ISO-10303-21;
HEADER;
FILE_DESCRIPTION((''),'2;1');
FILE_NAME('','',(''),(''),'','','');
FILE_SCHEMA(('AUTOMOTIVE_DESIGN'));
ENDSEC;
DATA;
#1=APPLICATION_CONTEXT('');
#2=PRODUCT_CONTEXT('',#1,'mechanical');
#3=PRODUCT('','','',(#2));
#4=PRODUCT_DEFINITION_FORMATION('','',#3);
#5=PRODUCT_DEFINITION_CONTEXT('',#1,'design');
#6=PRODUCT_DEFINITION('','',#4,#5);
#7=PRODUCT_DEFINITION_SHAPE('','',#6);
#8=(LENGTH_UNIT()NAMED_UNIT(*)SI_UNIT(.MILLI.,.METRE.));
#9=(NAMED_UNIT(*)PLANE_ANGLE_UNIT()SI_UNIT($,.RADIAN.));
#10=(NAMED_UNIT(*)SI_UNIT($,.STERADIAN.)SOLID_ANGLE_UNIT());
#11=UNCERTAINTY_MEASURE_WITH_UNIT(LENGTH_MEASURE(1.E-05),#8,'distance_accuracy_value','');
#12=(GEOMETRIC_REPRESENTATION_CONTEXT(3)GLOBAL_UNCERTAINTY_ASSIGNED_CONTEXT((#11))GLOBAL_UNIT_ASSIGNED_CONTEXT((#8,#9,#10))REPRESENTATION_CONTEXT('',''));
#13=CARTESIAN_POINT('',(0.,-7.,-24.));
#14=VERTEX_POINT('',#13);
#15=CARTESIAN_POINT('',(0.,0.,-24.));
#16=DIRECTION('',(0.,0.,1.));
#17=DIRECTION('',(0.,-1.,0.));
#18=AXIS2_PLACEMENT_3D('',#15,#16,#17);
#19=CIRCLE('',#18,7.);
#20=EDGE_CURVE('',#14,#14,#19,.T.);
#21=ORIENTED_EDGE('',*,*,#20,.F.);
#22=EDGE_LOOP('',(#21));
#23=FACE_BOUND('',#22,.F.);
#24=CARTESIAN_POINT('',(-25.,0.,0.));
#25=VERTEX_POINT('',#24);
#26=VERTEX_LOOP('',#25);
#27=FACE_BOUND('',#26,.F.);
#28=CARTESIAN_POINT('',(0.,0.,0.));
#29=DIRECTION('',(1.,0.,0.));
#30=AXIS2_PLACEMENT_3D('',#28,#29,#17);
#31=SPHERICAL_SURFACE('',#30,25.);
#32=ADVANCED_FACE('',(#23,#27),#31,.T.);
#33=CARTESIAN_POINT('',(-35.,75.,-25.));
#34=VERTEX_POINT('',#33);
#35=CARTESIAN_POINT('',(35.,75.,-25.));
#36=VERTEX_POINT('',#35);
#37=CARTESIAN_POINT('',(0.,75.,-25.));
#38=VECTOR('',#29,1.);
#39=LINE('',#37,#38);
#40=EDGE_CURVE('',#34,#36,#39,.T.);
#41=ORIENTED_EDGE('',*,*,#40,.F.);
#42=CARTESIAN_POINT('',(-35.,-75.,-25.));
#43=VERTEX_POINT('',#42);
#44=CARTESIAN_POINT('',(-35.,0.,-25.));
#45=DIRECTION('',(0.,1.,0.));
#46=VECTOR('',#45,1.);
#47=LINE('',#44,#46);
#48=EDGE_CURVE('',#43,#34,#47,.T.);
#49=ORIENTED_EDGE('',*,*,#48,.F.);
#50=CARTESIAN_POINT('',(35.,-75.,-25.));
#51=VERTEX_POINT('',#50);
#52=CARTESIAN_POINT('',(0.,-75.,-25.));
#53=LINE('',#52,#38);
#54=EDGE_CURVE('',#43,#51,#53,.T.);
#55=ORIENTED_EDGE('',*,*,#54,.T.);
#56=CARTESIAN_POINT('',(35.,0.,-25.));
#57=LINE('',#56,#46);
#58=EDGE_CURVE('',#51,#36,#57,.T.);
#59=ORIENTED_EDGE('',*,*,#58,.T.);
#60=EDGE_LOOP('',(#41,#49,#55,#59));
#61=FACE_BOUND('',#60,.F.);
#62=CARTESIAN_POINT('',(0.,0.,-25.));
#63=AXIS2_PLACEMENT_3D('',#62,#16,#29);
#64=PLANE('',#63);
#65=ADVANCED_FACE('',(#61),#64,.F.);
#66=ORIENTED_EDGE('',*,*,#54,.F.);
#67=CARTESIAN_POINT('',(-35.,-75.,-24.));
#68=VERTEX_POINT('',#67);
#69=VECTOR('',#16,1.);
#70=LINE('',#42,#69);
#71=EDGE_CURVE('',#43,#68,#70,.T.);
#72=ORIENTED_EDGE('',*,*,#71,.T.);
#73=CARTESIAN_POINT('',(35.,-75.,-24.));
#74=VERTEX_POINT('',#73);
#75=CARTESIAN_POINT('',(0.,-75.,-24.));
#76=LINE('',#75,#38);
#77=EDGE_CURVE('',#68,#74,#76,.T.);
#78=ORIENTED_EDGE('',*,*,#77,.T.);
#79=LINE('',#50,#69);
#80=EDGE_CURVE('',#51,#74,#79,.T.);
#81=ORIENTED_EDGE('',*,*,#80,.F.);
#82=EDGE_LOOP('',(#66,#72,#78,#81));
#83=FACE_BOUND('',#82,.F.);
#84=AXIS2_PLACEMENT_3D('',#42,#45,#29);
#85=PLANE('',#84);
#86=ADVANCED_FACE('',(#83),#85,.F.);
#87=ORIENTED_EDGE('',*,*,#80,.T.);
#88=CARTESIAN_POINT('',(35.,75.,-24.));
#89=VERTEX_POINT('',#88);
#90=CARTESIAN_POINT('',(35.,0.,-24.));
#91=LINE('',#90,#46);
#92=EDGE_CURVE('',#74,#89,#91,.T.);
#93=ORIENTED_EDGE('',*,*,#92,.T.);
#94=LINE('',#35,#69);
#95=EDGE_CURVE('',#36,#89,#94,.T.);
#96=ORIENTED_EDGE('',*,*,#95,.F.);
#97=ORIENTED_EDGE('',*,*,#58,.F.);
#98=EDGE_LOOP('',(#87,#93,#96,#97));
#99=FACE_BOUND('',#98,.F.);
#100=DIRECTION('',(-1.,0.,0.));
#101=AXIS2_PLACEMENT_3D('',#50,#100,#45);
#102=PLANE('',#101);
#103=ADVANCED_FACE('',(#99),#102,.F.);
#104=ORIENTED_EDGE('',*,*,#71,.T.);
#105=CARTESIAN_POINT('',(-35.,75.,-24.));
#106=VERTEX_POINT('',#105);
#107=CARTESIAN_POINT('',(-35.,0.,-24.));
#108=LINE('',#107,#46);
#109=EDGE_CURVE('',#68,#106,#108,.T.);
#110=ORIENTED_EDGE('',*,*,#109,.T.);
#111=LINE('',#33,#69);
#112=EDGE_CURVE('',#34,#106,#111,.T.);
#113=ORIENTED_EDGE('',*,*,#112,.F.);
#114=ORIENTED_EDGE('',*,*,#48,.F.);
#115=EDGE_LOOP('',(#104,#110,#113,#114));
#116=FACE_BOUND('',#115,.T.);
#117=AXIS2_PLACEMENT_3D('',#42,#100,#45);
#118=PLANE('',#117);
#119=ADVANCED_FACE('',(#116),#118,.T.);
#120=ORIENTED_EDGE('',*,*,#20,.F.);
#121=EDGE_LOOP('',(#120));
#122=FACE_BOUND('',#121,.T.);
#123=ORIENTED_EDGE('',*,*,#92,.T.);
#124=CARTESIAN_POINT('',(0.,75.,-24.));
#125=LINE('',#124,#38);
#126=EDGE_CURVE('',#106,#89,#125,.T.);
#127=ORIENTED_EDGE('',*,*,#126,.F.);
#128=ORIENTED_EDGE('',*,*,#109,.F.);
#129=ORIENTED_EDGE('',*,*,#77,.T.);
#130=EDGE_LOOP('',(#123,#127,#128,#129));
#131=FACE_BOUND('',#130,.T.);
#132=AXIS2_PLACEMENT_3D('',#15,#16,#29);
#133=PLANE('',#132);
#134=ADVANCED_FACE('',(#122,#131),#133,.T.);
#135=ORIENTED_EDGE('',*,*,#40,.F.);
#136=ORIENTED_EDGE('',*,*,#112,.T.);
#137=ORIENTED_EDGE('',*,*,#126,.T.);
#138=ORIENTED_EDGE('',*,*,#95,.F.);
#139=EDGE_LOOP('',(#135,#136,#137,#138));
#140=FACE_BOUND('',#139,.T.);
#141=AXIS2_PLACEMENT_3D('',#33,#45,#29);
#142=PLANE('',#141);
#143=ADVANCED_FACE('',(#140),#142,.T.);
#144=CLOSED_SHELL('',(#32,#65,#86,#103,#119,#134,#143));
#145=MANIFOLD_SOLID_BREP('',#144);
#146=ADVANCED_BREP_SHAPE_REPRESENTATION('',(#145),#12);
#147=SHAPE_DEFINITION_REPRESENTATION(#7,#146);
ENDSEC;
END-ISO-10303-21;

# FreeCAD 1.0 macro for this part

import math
import FreeCAD as App
import Part
import Sketcher


def add_polygon(sketch, points):
    """Adds a closed chain of lines whose ends are joined by coincident constraints."""
    first, n = sketch.GeometryCount, len(points)
    for a, b in zip(points, points[1:] + points[:1]):
        sketch.addGeometry(Part.LineSegment(App.Vector(*a, 0), App.Vector(*b, 0)), False)
    for i in range(n):
        sketch.addConstraint(Sketcher.Constraint("Coincident", first + i, 2, first + (i + 1) % n, 1))

doc = App.newDocument("Part")
body = doc.addObject("PartDesign::Body", "Body")

# Sketch on XY plane
sketch1 = doc.addObject("Sketcher::SketchObject", "Sketch")
body.addObject(sketch1)
sketch1.AttachmentSupport = (doc.XY_Plane, [""])
sketch1.MapMode = "FlatFace"
sketch1.addGeometry(Part.LineSegment(App.Vector(25, 0, 0), App.Vector(-25, 0, 0)), False)
sketch1.addGeometry(Part.ArcOfCircle(Part.Circle(App.Vector(0, 0, 0), App.Vector(0, 0, 1), 25), math.radians(180), math.radians(360)), False)
sketch1.addConstraint(Sketcher.Constraint("Coincident", 0, 1, 1, 2))
sketch1.addConstraint(Sketcher.Constraint("Coincident", 1, 1, 0, 2))
sketch1.addConstraint(Sketcher.Constraint("Horizontal", 0))
sketch1.addConstraint(Sketcher.Constraint("Coincident", 1, 3, -1, 1))
sketch1.addConstraint(Sketcher.Constraint("PointOnObject", 0, 1, -1))
sketch1.addConstraint(Sketcher.Constraint("Radius", 1, 25.0))
revolution = doc.addObject("PartDesign::Revolution", "Revolution")
body.addObject(revolution)
revolution.Profile = sketch1
revolution.ReferenceAxis = (sketch1, ["H_Axis"])
revolution.Angle = 360

# Sketch on XY plane
sketch2 = doc.addObject("Sketcher::SketchObject", "Sketch001")
body.addObject(sketch2)
sketch2.AttachmentSupport = (doc.XY_Plane, [""])
sketch2.MapMode = "FlatFace"
sketch2.AttachmentOffset = App.Placement(App.Vector(0, 0, -25), App.Rotation())
add_polygon(sketch2, [(-35, 75), (-35, -75), (35, -75), (35, 75)])  # lines 0-3
sketch2.addConstraint(Sketcher.Constraint("Vertical", 0))
sketch2.addConstraint(Sketcher.Constraint("Horizontal", 1))
sketch2.addConstraint(Sketcher.Constraint("Vertical", 2))
sketch2.addConstraint(Sketcher.Constraint("Horizontal", 3))
sketch2.addConstraint(Sketcher.Constraint("Symmetric", 0, 2, 2, 2, -1, 1))
sketch2.addConstraint(Sketcher.Constraint("DistanceX", 1, 1, 1, 2, 70.0))
sketch2.addConstraint(Sketcher.Constraint("DistanceY", 0, 2, 0, 1, 150.0))
pad1 = doc.addObject("PartDesign::Pad", "Pad")
body.addObject(pad1)
pad1.Profile = sketch2
pad1.Length = 1

doc.recompute()
